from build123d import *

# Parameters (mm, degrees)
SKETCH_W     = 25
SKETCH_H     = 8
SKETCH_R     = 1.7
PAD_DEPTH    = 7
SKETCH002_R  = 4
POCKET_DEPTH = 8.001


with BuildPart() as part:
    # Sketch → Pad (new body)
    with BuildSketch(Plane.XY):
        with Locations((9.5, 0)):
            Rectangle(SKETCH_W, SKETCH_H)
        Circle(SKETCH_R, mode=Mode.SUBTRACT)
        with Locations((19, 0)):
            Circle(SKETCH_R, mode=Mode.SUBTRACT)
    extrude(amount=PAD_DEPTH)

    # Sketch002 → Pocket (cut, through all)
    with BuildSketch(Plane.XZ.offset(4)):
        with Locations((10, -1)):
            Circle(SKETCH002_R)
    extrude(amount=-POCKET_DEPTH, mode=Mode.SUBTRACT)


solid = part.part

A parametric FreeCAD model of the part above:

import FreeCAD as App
import Part
import Sketcher
from FreeCAD import Vector


def add_polygon(sketch, points):
    """Adds a closed chain of lines whose ends are joined by coincident constraints."""
    first, n = sketch.GeometryCount, len(points)
    for a, b in zip(points, points[1:] + points[:1]):
        sketch.addGeometry(Part.LineSegment(App.Vector(*a, 0), App.Vector(*b, 0)), False)
    for i in range(n):
        sketch.addConstraint(Sketcher.Constraint("Coincident", first + i, 2, first + (i + 1) % n, 1))

doc = App.newDocument("Part")
params = doc.addObject("Spreadsheet::Sheet", "Params")
for row, (alias, value) in enumerate([
    ("sketch1_diameter", "3.4 mm"),
    ("sketch1_width", "25 mm"),
    ("sketch1_height", "8 mm"),
    ("pad1_length", "7 mm"),
    ("sketch2_diameter", "8 mm"),
], start=1):
    params.set(f"A{row}", alias)
    params.set(f"B{row}", "=" + value)
    params.setAlias(f"B{row}", alias)

body = doc.addObject("PartDesign::Body", "Body")

# Sketch on XY plane
sketch1 = body.newObject("Sketcher::SketchObject", "Sketch")
sketch1.AttachmentSupport = (doc.getObject("XY_Plane"), [""])
sketch1.MapMode = "FlatFace"
add_polygon(sketch1, [(-3, 4), (-3, -4), (22, -4), (22, 4)])  # lines 0-3
sketch1.addGeometry(Part.Circle(Vector(0, 0, 0), Vector(0, 0, 1), 1.7), False)  # 4
sketch1.addGeometry(Part.Circle(Vector(19, 0, 0), Vector(0, 0, 1), 1.7), False)  # 5
sketch1.addConstraint(Sketcher.Constraint("Vertical", 0))
sketch1.addConstraint(Sketcher.Constraint("Horizontal", 1))
sketch1.addConstraint(Sketcher.Constraint("Vertical", 2))
sketch1.addConstraint(Sketcher.Constraint("Horizontal", 3))
sketch1.addConstraint(Sketcher.Constraint("Coincident", 4, 3, -1, 1))
sketch1.addConstraint(Sketcher.Constraint("Equal", 4, 5))
sketch1.addConstraint(Sketcher.Constraint("PointOnObject", 5, 3, -1))
sketch1.addConstraint(Sketcher.Constraint("Diameter", 4, 3.4))
sketch1.addConstraint(Sketcher.Constraint("DistanceX", 1, 1, 1, 2, 25.0))
sketch1.addConstraint(Sketcher.Constraint("DistanceY", 0, 2, 0, 1, 8.0))
sketch1.addConstraint(Sketcher.Constraint("DistanceX", -1, 1, 5, 3, 19.0))
sketch1.addConstraint(Sketcher.Constraint("DistanceX", 0, 2, -1, 1, 3.0))
sketch1.addConstraint(Sketcher.Constraint("DistanceY", 0, 2, -1, 1, 4.0))
sketch1.setExpression("Constraints[11]", "Params.sketch1_diameter")
sketch1.setExpression("Constraints[12]", "Params.sketch1_width")
sketch1.setExpression("Constraints[13]", "Params.sketch1_height")
pad1 = body.newObject("PartDesign::Pad", "Pad")
pad1.Profile = sketch1
pad1.setExpression("Length", "Params.pad1_length")

# Sketch on XZ plane
sketch2 = body.newObject("Sketcher::SketchObject", "Sketch001")
sketch2.AttachmentSupport = (doc.getObject("XZ_Plane"), [""])
sketch2.MapMode = "FlatFace"
sketch2.AttachmentOffset = App.Placement(Vector(0, 0, 4), App.Rotation())
sketch2.addGeometry(Part.Circle(Vector(10, -1, 0), Vector(0, 0, 1), 4), False)
sketch2.addConstraint(Sketcher.Constraint("Diameter", 0, 8.0))
sketch2.addConstraint(Sketcher.Constraint("DistanceX", -1, 1, 0, 3, 10.0))
sketch2.addConstraint(Sketcher.Constraint("DistanceY", 0, 3, -1, 1, 1.0))
sketch2.setExpression("Constraints[0]", "Params.sketch2_diameter")
pocket1 = body.newObject("PartDesign::Pocket", "Pocket")
pocket1.Profile = sketch2
pocket1.Type = "ThroughAll"

doc.recompute()
